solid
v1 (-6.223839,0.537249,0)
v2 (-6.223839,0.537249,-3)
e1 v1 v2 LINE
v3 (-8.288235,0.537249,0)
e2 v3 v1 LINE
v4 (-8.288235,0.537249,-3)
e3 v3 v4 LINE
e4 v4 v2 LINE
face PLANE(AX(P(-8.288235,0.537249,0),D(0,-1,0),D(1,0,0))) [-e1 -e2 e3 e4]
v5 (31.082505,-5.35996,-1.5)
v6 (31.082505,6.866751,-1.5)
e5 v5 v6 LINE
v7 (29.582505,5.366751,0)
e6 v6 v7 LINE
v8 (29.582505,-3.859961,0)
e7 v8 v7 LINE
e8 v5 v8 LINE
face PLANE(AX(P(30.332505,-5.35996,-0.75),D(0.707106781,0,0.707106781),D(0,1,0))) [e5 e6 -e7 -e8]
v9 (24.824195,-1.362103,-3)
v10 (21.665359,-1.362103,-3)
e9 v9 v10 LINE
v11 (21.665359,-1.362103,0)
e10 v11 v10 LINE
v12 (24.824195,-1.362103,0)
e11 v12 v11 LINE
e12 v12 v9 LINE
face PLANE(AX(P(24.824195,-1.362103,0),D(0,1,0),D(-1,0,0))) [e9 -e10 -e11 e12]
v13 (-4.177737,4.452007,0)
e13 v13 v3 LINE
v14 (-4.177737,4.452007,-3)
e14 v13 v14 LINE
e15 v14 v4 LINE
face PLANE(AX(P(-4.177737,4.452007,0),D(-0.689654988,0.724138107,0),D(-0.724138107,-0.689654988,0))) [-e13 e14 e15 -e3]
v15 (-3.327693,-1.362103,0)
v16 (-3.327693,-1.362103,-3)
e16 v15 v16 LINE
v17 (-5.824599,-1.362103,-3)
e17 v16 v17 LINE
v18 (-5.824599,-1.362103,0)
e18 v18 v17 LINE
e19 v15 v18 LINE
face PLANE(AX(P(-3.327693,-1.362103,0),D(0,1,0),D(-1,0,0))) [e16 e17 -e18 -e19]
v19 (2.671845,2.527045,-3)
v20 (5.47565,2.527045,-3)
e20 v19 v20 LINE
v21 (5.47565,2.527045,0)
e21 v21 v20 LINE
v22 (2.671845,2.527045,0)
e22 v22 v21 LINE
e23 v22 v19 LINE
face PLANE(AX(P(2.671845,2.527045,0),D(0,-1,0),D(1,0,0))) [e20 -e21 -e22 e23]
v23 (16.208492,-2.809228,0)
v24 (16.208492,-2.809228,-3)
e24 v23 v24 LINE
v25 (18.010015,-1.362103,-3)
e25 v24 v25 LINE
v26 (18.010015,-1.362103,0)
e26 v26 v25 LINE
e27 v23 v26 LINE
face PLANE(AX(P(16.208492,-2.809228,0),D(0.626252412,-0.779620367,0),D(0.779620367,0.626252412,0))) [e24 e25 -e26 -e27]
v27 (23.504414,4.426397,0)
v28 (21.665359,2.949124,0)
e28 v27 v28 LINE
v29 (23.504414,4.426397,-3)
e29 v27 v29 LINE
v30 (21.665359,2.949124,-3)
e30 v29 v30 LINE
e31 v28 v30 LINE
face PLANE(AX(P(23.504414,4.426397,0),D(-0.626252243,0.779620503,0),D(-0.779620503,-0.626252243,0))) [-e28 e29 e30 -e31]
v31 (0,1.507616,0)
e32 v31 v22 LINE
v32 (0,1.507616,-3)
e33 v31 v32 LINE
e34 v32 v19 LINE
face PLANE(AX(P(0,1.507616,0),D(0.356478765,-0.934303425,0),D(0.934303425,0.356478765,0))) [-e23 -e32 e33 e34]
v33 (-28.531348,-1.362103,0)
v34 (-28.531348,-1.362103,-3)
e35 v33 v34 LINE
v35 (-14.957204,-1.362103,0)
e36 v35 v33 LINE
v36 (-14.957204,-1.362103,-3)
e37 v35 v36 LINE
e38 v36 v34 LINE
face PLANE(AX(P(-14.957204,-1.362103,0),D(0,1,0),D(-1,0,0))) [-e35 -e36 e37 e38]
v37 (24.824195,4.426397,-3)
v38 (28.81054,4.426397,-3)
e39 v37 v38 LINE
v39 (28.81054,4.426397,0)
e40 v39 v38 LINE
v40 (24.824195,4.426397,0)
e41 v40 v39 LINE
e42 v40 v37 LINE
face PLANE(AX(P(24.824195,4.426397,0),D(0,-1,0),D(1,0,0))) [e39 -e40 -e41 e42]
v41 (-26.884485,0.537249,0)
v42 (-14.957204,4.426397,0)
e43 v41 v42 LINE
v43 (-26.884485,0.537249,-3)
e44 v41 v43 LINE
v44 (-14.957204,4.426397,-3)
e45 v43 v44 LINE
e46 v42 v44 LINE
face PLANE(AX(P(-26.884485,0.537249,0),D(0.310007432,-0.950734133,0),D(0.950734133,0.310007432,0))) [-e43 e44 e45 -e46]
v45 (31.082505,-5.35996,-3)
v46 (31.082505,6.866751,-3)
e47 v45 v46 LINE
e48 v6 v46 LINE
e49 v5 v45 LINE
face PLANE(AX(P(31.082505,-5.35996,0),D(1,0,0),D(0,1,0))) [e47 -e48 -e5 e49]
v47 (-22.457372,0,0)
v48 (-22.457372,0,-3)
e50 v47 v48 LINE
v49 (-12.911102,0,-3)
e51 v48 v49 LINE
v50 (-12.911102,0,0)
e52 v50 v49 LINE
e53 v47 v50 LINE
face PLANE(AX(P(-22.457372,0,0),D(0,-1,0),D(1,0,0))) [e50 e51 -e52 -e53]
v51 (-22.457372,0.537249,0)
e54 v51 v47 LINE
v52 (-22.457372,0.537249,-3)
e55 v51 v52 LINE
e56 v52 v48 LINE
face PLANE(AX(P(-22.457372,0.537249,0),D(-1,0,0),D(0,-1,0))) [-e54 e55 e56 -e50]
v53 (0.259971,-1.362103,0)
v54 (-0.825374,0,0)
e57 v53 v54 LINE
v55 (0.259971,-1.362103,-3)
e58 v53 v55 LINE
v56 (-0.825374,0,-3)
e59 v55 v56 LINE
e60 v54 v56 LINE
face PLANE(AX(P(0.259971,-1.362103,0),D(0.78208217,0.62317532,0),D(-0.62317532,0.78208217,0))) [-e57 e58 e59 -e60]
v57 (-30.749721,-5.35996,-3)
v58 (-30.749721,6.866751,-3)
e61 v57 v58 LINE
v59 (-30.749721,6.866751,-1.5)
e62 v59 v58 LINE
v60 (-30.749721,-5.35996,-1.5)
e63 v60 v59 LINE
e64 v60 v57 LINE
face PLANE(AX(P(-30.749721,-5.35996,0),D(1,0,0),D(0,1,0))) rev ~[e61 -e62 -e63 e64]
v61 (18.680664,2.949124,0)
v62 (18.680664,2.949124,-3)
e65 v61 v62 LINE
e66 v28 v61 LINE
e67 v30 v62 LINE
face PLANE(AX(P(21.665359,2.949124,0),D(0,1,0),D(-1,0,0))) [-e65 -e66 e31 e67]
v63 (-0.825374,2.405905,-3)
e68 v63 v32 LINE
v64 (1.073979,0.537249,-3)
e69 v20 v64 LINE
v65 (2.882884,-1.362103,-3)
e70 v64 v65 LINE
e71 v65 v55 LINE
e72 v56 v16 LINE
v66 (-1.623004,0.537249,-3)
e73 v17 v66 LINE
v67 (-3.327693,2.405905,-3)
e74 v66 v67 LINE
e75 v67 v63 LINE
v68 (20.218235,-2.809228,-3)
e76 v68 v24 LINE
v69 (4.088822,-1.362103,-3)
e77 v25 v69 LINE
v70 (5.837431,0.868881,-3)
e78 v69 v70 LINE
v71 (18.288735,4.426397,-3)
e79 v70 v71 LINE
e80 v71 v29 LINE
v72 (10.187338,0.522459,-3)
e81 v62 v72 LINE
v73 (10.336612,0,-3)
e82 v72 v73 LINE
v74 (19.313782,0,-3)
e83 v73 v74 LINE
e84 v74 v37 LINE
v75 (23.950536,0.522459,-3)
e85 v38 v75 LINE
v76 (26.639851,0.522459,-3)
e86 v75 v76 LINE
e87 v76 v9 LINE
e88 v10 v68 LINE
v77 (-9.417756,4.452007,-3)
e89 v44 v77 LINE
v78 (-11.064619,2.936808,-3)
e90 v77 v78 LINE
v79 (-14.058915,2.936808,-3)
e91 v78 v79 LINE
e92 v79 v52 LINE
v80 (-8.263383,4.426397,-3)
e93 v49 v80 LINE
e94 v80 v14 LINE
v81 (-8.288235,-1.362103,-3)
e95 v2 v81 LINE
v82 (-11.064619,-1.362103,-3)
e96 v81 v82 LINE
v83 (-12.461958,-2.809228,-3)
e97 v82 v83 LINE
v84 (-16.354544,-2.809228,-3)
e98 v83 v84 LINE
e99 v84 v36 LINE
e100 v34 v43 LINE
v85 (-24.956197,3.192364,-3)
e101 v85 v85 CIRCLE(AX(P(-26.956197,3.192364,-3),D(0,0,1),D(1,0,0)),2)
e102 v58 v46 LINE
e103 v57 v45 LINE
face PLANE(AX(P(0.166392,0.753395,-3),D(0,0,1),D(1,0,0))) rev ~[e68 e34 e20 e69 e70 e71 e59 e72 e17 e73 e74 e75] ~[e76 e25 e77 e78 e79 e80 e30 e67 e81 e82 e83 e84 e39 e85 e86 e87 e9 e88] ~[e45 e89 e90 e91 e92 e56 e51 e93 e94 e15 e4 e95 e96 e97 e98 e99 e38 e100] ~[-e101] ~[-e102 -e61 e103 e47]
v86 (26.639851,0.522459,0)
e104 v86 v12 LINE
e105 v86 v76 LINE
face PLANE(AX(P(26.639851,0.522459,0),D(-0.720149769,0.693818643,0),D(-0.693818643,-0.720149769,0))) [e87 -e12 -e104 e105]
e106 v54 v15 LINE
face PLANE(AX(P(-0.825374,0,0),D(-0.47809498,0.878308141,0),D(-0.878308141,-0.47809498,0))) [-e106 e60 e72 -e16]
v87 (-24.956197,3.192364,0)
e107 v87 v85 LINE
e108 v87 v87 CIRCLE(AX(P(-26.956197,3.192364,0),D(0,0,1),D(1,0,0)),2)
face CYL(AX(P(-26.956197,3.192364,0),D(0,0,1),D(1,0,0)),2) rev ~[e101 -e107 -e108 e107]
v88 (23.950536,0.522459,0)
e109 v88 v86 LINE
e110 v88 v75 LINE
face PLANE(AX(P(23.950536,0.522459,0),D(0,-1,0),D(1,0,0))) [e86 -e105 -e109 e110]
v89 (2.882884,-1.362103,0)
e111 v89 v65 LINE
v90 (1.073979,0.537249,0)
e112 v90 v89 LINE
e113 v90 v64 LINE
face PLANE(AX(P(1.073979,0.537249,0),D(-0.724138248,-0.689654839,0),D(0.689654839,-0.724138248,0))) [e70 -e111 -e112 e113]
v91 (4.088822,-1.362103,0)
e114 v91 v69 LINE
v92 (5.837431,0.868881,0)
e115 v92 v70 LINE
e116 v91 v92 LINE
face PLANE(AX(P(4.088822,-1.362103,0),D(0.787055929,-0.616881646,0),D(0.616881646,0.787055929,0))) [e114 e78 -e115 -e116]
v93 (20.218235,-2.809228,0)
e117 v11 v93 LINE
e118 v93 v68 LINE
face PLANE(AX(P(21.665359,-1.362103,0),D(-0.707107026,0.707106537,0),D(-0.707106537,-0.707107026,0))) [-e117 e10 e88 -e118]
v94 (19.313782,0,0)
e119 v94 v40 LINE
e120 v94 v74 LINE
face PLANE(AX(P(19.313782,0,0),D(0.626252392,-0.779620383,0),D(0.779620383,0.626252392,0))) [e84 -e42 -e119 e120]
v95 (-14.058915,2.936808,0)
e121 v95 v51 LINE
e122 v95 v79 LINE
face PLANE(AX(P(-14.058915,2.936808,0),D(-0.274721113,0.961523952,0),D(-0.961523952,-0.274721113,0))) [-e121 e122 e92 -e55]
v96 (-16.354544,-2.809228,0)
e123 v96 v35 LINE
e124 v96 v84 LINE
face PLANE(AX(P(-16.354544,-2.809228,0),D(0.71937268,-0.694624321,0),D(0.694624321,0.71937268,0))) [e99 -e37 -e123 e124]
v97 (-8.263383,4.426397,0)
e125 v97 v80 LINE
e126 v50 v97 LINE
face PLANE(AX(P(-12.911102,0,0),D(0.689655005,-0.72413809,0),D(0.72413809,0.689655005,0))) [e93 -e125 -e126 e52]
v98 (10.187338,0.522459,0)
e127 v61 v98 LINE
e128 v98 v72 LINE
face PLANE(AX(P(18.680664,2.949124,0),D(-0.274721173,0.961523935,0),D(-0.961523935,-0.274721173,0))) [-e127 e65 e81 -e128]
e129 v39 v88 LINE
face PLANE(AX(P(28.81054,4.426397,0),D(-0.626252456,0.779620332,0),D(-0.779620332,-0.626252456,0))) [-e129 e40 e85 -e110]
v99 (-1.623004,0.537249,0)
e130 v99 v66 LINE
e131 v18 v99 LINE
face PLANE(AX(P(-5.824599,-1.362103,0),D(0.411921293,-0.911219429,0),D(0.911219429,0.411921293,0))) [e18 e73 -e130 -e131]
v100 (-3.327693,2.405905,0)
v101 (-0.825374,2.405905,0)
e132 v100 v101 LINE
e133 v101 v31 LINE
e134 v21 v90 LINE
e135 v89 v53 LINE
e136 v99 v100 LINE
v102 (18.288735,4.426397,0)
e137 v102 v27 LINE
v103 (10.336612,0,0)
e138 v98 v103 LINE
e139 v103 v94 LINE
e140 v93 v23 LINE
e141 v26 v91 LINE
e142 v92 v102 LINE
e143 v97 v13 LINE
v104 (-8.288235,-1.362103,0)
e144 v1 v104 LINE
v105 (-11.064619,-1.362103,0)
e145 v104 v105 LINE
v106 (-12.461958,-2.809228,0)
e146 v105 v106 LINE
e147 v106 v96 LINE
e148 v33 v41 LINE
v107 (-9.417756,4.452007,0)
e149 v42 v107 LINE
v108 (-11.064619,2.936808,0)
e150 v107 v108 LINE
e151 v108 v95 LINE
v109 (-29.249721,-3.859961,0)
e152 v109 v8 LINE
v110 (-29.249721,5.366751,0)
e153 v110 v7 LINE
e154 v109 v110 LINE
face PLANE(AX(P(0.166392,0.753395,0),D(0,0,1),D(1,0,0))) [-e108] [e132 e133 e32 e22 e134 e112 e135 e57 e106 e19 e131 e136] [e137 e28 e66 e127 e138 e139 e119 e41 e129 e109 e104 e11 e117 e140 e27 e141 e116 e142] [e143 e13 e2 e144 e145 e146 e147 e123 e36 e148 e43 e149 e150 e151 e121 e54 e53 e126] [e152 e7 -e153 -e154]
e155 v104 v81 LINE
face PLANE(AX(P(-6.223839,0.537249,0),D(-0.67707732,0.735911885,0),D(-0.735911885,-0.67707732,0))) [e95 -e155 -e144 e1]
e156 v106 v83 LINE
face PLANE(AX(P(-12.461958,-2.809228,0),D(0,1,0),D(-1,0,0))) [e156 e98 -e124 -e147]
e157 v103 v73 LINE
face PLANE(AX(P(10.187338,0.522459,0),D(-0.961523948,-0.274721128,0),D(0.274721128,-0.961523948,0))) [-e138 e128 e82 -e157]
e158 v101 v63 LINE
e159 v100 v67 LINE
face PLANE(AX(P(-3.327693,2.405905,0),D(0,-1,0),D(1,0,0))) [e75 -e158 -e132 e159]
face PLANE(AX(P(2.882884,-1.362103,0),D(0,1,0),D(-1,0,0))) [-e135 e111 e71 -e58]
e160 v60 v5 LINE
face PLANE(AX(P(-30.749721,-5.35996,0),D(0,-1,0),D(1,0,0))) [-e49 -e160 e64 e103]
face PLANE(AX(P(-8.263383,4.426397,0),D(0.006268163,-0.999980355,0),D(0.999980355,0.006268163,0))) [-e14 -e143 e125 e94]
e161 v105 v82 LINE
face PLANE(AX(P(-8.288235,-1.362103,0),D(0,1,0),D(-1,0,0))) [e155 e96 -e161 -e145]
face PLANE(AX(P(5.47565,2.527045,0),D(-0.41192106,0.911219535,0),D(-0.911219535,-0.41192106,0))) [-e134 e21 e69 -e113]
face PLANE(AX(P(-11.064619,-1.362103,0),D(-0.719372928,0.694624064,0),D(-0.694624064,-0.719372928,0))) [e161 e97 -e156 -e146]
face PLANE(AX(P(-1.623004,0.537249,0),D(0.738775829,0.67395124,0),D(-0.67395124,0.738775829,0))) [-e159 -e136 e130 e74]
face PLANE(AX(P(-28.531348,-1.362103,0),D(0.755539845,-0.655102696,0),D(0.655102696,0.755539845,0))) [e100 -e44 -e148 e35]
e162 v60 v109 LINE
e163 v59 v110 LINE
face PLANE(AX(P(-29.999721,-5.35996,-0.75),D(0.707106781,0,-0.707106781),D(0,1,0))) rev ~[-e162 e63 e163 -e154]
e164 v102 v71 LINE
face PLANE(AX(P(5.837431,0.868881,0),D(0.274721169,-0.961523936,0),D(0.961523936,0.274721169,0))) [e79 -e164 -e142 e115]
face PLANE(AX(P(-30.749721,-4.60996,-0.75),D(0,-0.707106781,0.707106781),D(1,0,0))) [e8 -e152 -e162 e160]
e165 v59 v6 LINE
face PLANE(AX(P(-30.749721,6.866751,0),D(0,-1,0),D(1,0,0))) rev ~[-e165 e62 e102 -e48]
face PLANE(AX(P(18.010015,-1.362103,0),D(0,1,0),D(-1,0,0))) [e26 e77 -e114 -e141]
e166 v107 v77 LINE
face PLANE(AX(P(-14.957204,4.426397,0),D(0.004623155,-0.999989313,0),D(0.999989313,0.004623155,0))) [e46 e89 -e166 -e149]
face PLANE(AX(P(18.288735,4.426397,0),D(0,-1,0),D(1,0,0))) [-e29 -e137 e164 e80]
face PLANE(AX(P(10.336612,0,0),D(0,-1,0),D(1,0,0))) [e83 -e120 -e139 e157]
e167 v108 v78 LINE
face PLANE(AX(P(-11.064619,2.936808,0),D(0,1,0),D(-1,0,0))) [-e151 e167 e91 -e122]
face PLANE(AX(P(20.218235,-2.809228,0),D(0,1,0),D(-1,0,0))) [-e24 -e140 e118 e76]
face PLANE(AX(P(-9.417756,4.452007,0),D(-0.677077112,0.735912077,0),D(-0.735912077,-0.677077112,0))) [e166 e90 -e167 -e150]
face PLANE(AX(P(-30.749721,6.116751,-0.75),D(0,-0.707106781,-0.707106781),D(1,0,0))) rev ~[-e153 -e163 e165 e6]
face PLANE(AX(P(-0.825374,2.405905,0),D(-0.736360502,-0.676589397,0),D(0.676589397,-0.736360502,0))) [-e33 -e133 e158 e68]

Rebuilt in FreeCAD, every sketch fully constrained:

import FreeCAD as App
import Part
import Sketcher
from FreeCAD import Vector
Q = App.Units.Quantity


def edges_at(feature, points):
    """Names of the edges that pass closest to the given points."""
    edges = feature.Shape.Edges
    near = lambda p: min(range(len(edges)), key=lambda i: edges[i].distToShape(Part.Vertex(*p))[0])
    return sorted({f"Edge{near(p) + 1}" for p in points})


def add_polygon(sketch, points):
    """Adds a closed chain of lines whose ends are joined by coincident constraints."""
    first, n = sketch.GeometryCount, len(points)
    for a, b in zip(points, points[1:] + points[:1]):
        sketch.addGeometry(Part.LineSegment(App.Vector(*a, 0), App.Vector(*b, 0)), False)
    for i in range(n):
        sketch.addConstraint(Sketcher.Constraint("Coincident", first + i, 2, first + (i + 1) % n, 1))

doc = App.newDocument("Part")
body = doc.addObject("PartDesign::Body", "Body")

sketch1 = doc.addObject("Sketcher::SketchObject", "Sketch")
body.addObject(sketch1)
sketch1.AttachmentSupport = (doc.XY_Plane, [""])
sketch1.MapMode = "FlatFace"
add_polygon(sketch1, [(-30.7, 6.9), (-30.7, -5.4), (31.1, -5.4), (31.1, 6.9)])
add_polygon(sketch1, [(-0.8, 2.4), (0, 1.5), (2.7, 2.5), (5.5, 2.5), (1.1, 0.5), (2.9, -1.4), (0.3, -1.4), (-0.8, 0), (-3.3, -1.4), (-5.8, -1.4), (-1.6, 0.5), (-3.3, 2.4)])
add_polygon(sketch1, [(18, -1.4), (4.1, -1.4), (5.8, 0.9), (18.3, 4.4), (23.5, 4.4), (21.7, 2.9), (18.7, 2.9), (10.2, 0.5), (10.3, 0), (19.3, 0), (24.8, 4.4), (28.8, 4.4), (24, 0.5), (26.6, 0.5), (24.8, -1.4), (21.7, -1.4), (20.2, -2.8), (16.2, -2.8)])
add_polygon(sketch1, [(-12.9, 0), (-8.3, 4.4), (-4.2, 4.5), (-8.3, 0.5), (-6.2, 0.5), (-8.3, -1.4), (-11.1, -1.4), (-12.5, -2.8), (-16.4, -2.8), (-15, -1.4), (-28.5, -1.4), (-26.9, 0.5), (-15, 4.4), (-9.4, 4.5), (-11.1, 2.9), (-14.1, 2.9), (-22.5, 0.5), (-22.5, 0)])
sketch1.addConstraint(Sketcher.Constraint("Vertical", 0))
sketch1.addConstraint(Sketcher.Constraint("Horizontal", 1))
sketch1.addConstraint(Sketcher.Constraint("Vertical", 2))
sketch1.addConstraint(Sketcher.Constraint("Horizontal", 3))
sketch1.addConstraint(Sketcher.Constraint("Horizontal", 6))
sketch1.addConstraint(Sketcher.Constraint("Horizontal", 9))
sketch1.addConstraint(Sketcher.Constraint("Horizontal", 12))
sketch1.addConstraint(Sketcher.Constraint("Horizontal", 15))
sketch1.addConstraint(Sketcher.Constraint("Horizontal", 16))
sketch1.addConstraint(Sketcher.Constraint("Horizontal", 19))
sketch1.addConstraint(Sketcher.Constraint("Horizontal", 21))
sketch1.addConstraint(Sketcher.Constraint("Horizontal", 24))
sketch1.addConstraint(Sketcher.Constraint("Horizontal", 26))
sketch1.addConstraint(Sketcher.Constraint("Horizontal", 28))
sketch1.addConstraint(Sketcher.Constraint("Horizontal", 30))
sketch1.addConstraint(Sketcher.Constraint("Horizontal", 32))
sketch1.addConstraint(Sketcher.Constraint("Horizontal", 37))
sketch1.addConstraint(Sketcher.Constraint("Horizontal", 39))
sketch1.addConstraint(Sketcher.Constraint("Horizontal", 41))
sketch1.addConstraint(Sketcher.Constraint("Horizontal", 43))
sketch1.addConstraint(Sketcher.Constraint("Horizontal", 48))
sketch1.addConstraint(Sketcher.Constraint("Vertical", 50))
sketch1.addConstraint(Sketcher.Constraint("Horizontal", 51))
sketch1.addConstraint(Sketcher.Constraint("PointOnObject", 4, 2, -2))
sketch1.addConstraint(Sketcher.Constraint("PointOnObject", 10, 2, -1))
sketch1.addConstraint(Sketcher.Constraint("PointOnObject", 23, 2, -1))
sketch1.addConstraint(Sketcher.Constraint("PointOnObject", 50, 2, -1))
sketch1.addConstraint(Sketcher.Constraint("Parallel", 7, 13))
sketch1.addConstraint(Sketcher.Constraint("Parallel", 18, 22))
sketch1.addConstraint(Sketcher.Constraint("Perpendicular", 22, 23))
sketch1.addConstraint(Sketcher.Constraint("Parallel", 20, 25))
sketch1.addConstraint(Sketcher.Constraint("Parallel", 25, 27))
sketch1.addConstraint(Sketcher.Constraint("Parallel", 27, 33))
sketch1.addConstraint(Sketcher.Constraint("Perpendicular", 8, 34))
sketch1.addConstraint(Sketcher.Constraint("Parallel", 34, 36))
sketch1.addConstraint(Sketcher.Constraint("Parallel", 40, 42))
sketch1.addConstraint(Sketcher.Constraint("Parallel", 38, 47))
sketch1.addConstraint(Sketcher.Constraint("Perpendicular", 23, 49))
sketch1.addConstraint(Sketcher.Constraint("Horizontal", 9, 2, 11, 2))
sketch1.addConstraint(Sketcher.Constraint("Horizontal", 7, 2, 13, 2))
sketch1.addConstraint(Sketcher.Constraint("Horizontal", 12, 2, 16, 2))
sketch1.addConstraint(Sketcher.Constraint("Horizontal", 19, 2, 25, 2))
sketch1.addConstraint(Sketcher.Constraint("Horizontal", 22, 2, 27, 2))
sketch1.addConstraint(Sketcher.Constraint("Horizontal", 16, 2, 29, 2))
sketch1.addConstraint(Sketcher.Constraint("Horizontal", 26, 2, 34, 2))
sketch1.addConstraint(Sketcher.Constraint("Horizontal", 13, 2, 36, 2))
sketch1.addConstraint(Sketcher.Constraint("Horizontal", 33, 2, 38, 2))
sketch1.addConstraint(Sketcher.Constraint("Horizontal", 32, 2, 40, 2))
sketch1.addConstraint(Sketcher.Constraint("Horizontal", 39, 2, 42, 2))
sketch1.addConstraint(Sketcher.Constraint("Horizontal", 37, 2, 44, 2))
sketch1.addConstraint(Sketcher.Constraint("Horizontal", 34, 2, 45, 2))
sketch1.addConstraint(Sketcher.Constraint("Horizontal", 35, 2, 46, 2))
sketch1.addConstraint(Sketcher.Constraint("Horizontal", 44, 2, 49, 2))
sketch1.addConstraint(Sketcher.Constraint("Vertical", 11, 2, 14, 2))
sketch1.addConstraint(Sketcher.Constraint("Vertical", 10, 2, 15, 2))
sketch1.addConstraint(Sketcher.Constraint("Vertical", 25, 2, 29, 2))
sketch1.addConstraint(Sketcher.Constraint("Vertical", 20, 2, 30, 2))
sketch1.addConstraint(Sketcher.Constraint("Vertical", 36, 2, 38, 2))
sketch1.addConstraint(Sketcher.Constraint("Vertical", 42, 2, 45, 2))
sketch1.addConstraint(Sketcher.Constraint("Vertical", 39, 2, 47, 2))
sketch1.addConstraint(Sketcher.Constraint("Angle", 31, Q("-134.99998 deg")))
sketch1.addConstraint(Sketcher.Constraint("Distance", 36, Q("5.676401 mm")))
sketch1.addConstraint(Sketcher.Constraint("Distance", 44, Q("2.513901 mm")))
sketch1.addConstraint(Sketcher.Constraint("DistanceX", 15, 1, 15, 2, Q("2.502319 mm")))
sketch1.addConstraint(Sketcher.Constraint("DistanceX", 19, 1, 19, 2, Q("5.215679 mm")))
sketch1.addConstraint(Sketcher.Constraint("DistanceX", 24, 1, 24, 2, Q("8.97717 mm")))
sketch1.addConstraint(Sketcher.Constraint("DistanceX", 51, 1, 51, 2, Q("9.54627 mm")))
sketch1.addConstraint(Sketcher.Constraint("DistanceY", 0, 2, 0, 1, Q("12.226711 mm")))
sketch1.addConstraint(Sketcher.Constraint("DistanceY", 50, 2, 50, 1, Q("0.537249 mm")))
sketch1.addConstraint(Sketcher.Constraint("DistanceX", 12, 2, -1, 1, Q("5.824599 mm")))
sketch1.addConstraint(Sketcher.Constraint("DistanceY", 7, 2, 2, 2, Q("6.329502 mm")))
sketch1.addConstraint(Sketcher.Constraint("DistanceY", 16, 2, 18, 2, Q("5.7885 mm")))
sketch1.addConstraint(Sketcher.Constraint("DistanceX", 31, 2, 27, 2, Q("3.732301 mm")))
sketch1.addConstraint(Sketcher.Constraint("DistanceY", 14, 2, 35, 2, Q("2.046102 mm")))
sketch1.addConstraint(Sketcher.Constraint("DistanceX", 36, 2, 35, 2, Q("4.110498 mm")))
sketch1.addConstraint(Sketcher.Constraint("DistanceY", 47, 2, 46, 2, Q("1.515199 mm")))
sketch1.addConstraint(Sketcher.Constraint("Distance", 5, Q("2.859719 mm")))
sketch1.addConstraint(Sketcher.Constraint("Distance", 11, Q("2.849022 mm")))
sketch1.addConstraint(Sketcher.Constraint("Distance", 13, Q("4.610959 mm")))
sketch1.addConstraint(Sketcher.Constraint("Distance", 18, Q("12.949552 mm")))
sketch1.addConstraint(Sketcher.Constraint("Distance", 20, Q("2.358911 mm")))
sketch1.addConstraint(Sketcher.Constraint("Distance", 27, Q("6.233809 mm")))
sketch1.addConstraint(Sketcher.Constraint("Distance", 33, Q("2.31077 mm")))
sketch1.addConstraint(Sketcher.Constraint("Distance", 38, Q("2.805222 mm")))
sketch1.addConstraint(Sketcher.Constraint("Distance", 42, Q("2.011649 mm")))
sketch1.addConstraint(Sketcher.Constraint("DistanceX", 1, 1, 1, 2, Q("61.832226 mm")))
sketch1.addConstraint(Sketcher.Constraint("DistanceX", 6, 1, 6, 2, Q("2.803805 mm")))
sketch1.addConstraint(Sketcher.Constraint("DistanceX", 9, 2, 9, 1, Q("2.622913 mm")))
sketch1.addConstraint(Sketcher.Constraint("DistanceX", 12, 2, 12, 1, Q("2.496906 mm")))
sketch1.addConstraint(Sketcher.Constraint("DistanceX", 16, 2, 16, 1, Q("13.921193 mm")))
sketch1.addConstraint(Sketcher.Constraint("DistanceX", 21, 2, 21, 1, Q("2.984695 mm")))
sketch1.addConstraint(Sketcher.Constraint("DistanceX", 26, 1, 26, 2, Q("3.986345 mm")))
sketch1.addConstraint(Sketcher.Constraint("DistanceX", 28, 1, 28, 2, Q("2.689315 mm")))
sketch1.addConstraint(Sketcher.Constraint("DistanceX", 30, 2, 30, 1, Q("3.158836 mm")))
sketch1.addConstraint(Sketcher.Constraint("DistanceX", 32, 2, 32, 1, Q("4.009743 mm")))
sketch1.addConstraint(Sketcher.Constraint("DistanceX", 39, 2, 39, 1, Q("2.776384 mm")))
sketch1.addConstraint(Sketcher.Constraint("DistanceX", 41, 2, 41, 1, Q("3.892586 mm")))
sketch1.addConstraint(Sketcher.Constraint("DistanceX", 43, 2, 43, 1, Q("13.574144 mm")))
sketch1.addConstraint(Sketcher.Constraint("DistanceX", 48, 2, 48, 1, Q("2.994296 mm")))
sketch1.addConstraint(Sketcher.Constraint("DistanceX", 0, 2, -1, 1, Q("30.749721 mm")))
sketch1.addConstraint(Sketcher.Constraint("DistanceX", -1, 1, 6, 2, Q("5.47565 mm")))
sketch1.addConstraint(Sketcher.Constraint("DistanceX", -1, 1, 7, 2, Q("1.073979 mm")))
sketch1.addConstraint(Sketcher.Constraint("DistanceX", -1, 1, 17, 2, Q("5.837431 mm")))
sketch1.addConstraint(Sketcher.Constraint("DistanceX", 37, 2, -1, 1, Q("6.223839 mm")))
pad1 = doc.addObject("PartDesign::Pad", "Pad")
body.addObject(pad1)
pad1.Profile = sketch1
pad1.Length = 3
pad1.Reversed = True
doc.recompute()

chamfer = doc.addObject("PartDesign::Chamfer", "Chamfer")
body.addObject(chamfer)
chamfer.Base = (pad1, edges_at(pad1, [
    (0.166, 6.867, 0),
    (-30.75, 0.753, 0),
    (0.166, -5.36, 0),
    (31.083, 0.753, 0),
]))
chamfer.Size = 1.5

sketch2 = doc.addObject("Sketcher::SketchObject", "Sketch001")
body.addObject(sketch2)
sketch2.AttachmentSupport = (doc.XY_Plane, [""])
sketch2.MapMode = "FlatFace"
sketch2.addGeometry(Part.Circle(Vector(-27, 3.2, 0), Vector(0, 0, 1), 2), False)
sketch2.addConstraint(Sketcher.Constraint("Diameter", 0, Q("4 mm")))
sketch2.addConstraint(Sketcher.Constraint("DistanceX", 0, 3, -1, 1, Q("26.956197 mm")))
sketch2.addConstraint(Sketcher.Constraint("DistanceY", -1, 1, 0, 3, Q("3.192364 mm")))
pocket1 = doc.addObject("PartDesign::Pocket", "Pocket")
body.addObject(pocket1)
pocket1.Profile = sketch2
pocket1.Length = 25

doc.recompute()
